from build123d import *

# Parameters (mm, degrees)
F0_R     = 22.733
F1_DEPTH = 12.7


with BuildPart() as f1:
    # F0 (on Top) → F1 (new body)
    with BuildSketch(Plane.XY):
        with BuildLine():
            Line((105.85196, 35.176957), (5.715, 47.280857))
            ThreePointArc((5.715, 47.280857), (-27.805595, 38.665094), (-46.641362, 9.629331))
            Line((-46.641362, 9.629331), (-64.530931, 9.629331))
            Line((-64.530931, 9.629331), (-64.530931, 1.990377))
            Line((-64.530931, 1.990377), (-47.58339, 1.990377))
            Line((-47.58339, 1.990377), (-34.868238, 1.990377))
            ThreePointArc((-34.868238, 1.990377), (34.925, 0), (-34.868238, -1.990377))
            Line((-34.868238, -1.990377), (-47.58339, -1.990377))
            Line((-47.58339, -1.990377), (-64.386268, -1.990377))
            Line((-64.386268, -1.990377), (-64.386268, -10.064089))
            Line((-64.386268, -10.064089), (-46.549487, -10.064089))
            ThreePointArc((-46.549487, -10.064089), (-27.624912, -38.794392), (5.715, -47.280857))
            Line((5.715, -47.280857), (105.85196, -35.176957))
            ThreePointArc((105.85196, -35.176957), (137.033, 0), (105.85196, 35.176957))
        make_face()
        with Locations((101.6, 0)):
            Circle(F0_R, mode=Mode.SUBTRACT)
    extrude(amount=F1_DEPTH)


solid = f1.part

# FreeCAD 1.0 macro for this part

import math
import FreeCAD as App
import Part
import Sketcher
from FreeCAD import Vector
Q = App.Units.Quantity

doc = App.newDocument("Part")
body = doc.addObject("PartDesign::Body", "Body")

# Sketch on XY plane
sketch1 = doc.addObject("Sketcher::SketchObject", "Sketch")
body.addObject(sketch1)
sketch1.AttachmentSupport = (doc.XY_Plane, [""])
sketch1.MapMode = "FlatFace"
sketch1.addGeometry(Part.LineSegment(Vector(105.9, 35.2, 0), Vector(5.7, 47.3, 0)), False)
sketch1.addGeometry(Part.ArcOfCircle(Part.Circle(Vector(0, 0, 0), Vector(0, 0, 1), 47.6), math.radians(83), math.radians(168)), False)
sketch1.addGeometry(Part.LineSegment(Vector(-46.6, 9.6, 0), Vector(-64.5, 9.6, 0)), False)
sketch1.addGeometry(Part.LineSegment(Vector(-64.5, 9.6, 0), Vector(-64.5, 2, 0)), False)
sketch1.addGeometry(Part.LineSegment(Vector(-64.5, 2, 0), Vector(-34.9, 2, 0)), False)
sketch1.addGeometry(Part.ArcOfCircle(Part.Circle(Vector(0, 0, 0), Vector(0, 0, 1), 34.9), math.radians(-177), math.radians(177)), False)
sketch1.addGeometry(Part.LineSegment(Vector(-34.9, -2, 0), Vector(-64.4, -2, 0)), False)
sketch1.addGeometry(Part.LineSegment(Vector(-64.4, -2, 0), Vector(-64.4, -10.1, 0)), False)
sketch1.addGeometry(Part.LineSegment(Vector(-64.4, -10.1, 0), Vector(-46.5, -10.1, 0)), False)
sketch1.addGeometry(Part.ArcOfCircle(Part.Circle(Vector(0, 0, 0), Vector(0, 0, 1), 47.6), math.radians(-168), math.radians(-83)), False)
sketch1.addGeometry(Part.LineSegment(Vector(5.7, -47.3, 0), Vector(105.9, -35.2, 0)), False)
sketch1.addGeometry(Part.ArcOfCircle(Part.Circle(Vector(101.6, 0, 0), Vector(0, 0, 1), 35.4), math.radians(-83), math.radians(83)), False)
sketch1.addGeometry(Part.Circle(Vector(101.6, 0, 0), Vector(0, 0, 1), 22.7), False)
sketch1.addConstraint(Sketcher.Constraint("Tangent", 0, 2, 1, 1))
sketch1.addConstraint(Sketcher.Constraint("Coincident", 1, 2, 2, 1))
sketch1.addConstraint(Sketcher.Constraint("Coincident", 2, 2, 3, 1))
sketch1.addConstraint(Sketcher.Constraint("Coincident", 3, 2, 4, 1))
sketch1.addConstraint(Sketcher.Constraint("Coincident", 4, 2, 5, 2))
sketch1.addConstraint(Sketcher.Constraint("Coincident", 5, 1, 6, 1))
sketch1.addConstraint(Sketcher.Constraint("Coincident", 6, 2, 7, 1))
sketch1.addConstraint(Sketcher.Constraint("Coincident", 7, 2, 8, 1))
sketch1.addConstraint(Sketcher.Constraint("Coincident", 8, 2, 9, 1))
sketch1.addConstraint(Sketcher.Constraint("Tangent", 9, 2, 10, 1))
sketch1.addConstraint(Sketcher.Constraint("Tangent", 10, 2, 11, 1))
sketch1.addConstraint(Sketcher.Constraint("Tangent", 11, 2, 0, 1))
sketch1.addConstraint(Sketcher.Constraint("Horizontal", 2))
sketch1.addConstraint(Sketcher.Constraint("Vertical", 3))
sketch1.addConstraint(Sketcher.Constraint("Horizontal", 4))
sketch1.addConstraint(Sketcher.Constraint("Horizontal", 6))
sketch1.addConstraint(Sketcher.Constraint("Vertical", 7))
sketch1.addConstraint(Sketcher.Constraint("Horizontal", 8))
sketch1.addConstraint(Sketcher.Constraint("Coincident", 1, 3, -1, 1))
sketch1.addConstraint(Sketcher.Constraint("Coincident", 5, 3, -1, 1))
sketch1.addConstraint(Sketcher.Constraint("Coincident", 9, 3, -1, 1))
sketch1.addConstraint(Sketcher.Constraint("Coincident", 12, 3, 11, 3))
sketch1.addConstraint(Sketcher.Constraint("Equal", 1, 9))
sketch1.addConstraint(Sketcher.Constraint("PointOnObject", 11, 3, -1))
sketch1.addConstraint(Sketcher.Constraint("Vertical", 4, 2, 5, 1))
sketch1.addConstraint(Sketcher.Constraint("Diameter", 12, Q("1.79 in")))
sketch1.addConstraint(Sketcher.Constraint("DistanceX", -1, 1, 11, 3, Q("4 in")))
sketch1.addConstraint(Sketcher.Constraint("Radius", 1, Q("1.8750001 in")))
sketch1.addConstraint(Sketcher.Constraint("Radius", 5, Q("1.375 in")))
sketch1.addConstraint(Sketcher.Constraint("Radius", 11, Q("1.395 in")))
sketch1.addConstraint(Sketcher.Constraint("DistanceX", 2, 2, 2, 1, 17.889569))
sketch1.addConstraint(Sketcher.Constraint("DistanceX", 6, 2, 6, 1, 29.51803))
sketch1.addConstraint(Sketcher.Constraint("DistanceX", 8, 1, 8, 2, 17.836781))
sketch1.addConstraint(Sketcher.Constraint("DistanceY", 7, 2, 7, 1, 8.073712))
sketch1.addConstraint(Sketcher.Constraint("DistanceX", 4, 1, 4, 2, 29.662693))
pad1 = doc.addObject("PartDesign::Pad", "Pad")
body.addObject(pad1)
pad1.Profile = sketch1
pad1.Length = Q("0.5 in")

doc.recompute()
